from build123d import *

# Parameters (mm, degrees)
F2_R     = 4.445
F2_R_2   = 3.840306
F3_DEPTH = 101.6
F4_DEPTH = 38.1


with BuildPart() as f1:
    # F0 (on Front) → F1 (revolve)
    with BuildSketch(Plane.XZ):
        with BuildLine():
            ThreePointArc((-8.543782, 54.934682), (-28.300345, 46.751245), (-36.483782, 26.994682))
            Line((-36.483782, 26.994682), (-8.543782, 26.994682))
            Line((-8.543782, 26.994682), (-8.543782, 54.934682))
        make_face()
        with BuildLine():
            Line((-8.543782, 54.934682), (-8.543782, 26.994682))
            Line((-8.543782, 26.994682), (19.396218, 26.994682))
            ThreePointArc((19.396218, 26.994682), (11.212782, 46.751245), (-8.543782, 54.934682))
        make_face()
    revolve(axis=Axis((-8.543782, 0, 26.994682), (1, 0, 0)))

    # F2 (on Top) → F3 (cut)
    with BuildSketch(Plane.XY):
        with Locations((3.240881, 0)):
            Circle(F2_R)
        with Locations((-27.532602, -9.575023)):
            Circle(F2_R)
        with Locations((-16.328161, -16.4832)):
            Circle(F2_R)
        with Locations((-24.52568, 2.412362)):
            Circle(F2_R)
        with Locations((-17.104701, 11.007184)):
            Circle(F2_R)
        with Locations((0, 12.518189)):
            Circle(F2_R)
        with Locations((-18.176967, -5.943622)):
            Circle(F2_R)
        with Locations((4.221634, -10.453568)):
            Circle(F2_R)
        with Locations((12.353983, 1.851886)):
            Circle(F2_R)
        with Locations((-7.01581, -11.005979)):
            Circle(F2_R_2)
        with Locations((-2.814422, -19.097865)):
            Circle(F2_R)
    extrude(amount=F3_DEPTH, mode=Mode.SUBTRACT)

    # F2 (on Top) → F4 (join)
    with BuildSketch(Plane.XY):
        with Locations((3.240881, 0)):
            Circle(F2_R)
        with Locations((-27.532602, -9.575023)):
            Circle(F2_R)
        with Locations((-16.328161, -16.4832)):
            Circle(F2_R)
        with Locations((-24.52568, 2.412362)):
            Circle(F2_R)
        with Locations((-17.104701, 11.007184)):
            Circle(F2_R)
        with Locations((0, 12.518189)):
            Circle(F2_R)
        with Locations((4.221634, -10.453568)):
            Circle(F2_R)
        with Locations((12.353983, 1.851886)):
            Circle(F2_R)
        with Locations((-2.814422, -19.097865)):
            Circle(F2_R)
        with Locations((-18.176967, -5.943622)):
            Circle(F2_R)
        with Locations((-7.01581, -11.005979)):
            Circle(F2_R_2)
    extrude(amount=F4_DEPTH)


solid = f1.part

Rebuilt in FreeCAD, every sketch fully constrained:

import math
import FreeCAD as App
import Part
import Sketcher
from FreeCAD import Vector
Q = App.Units.Quantity

doc = App.newDocument("Part")
body = doc.addObject("PartDesign::Body", "Body")

# Sketch on XZ plane
sketch1 = doc.addObject("Sketcher::SketchObject", "Sketch")
body.addObject(sketch1)
sketch1.AttachmentSupport = (doc.XZ_Plane, [""])
sketch1.MapMode = "FlatFace"
sketch1.addGeometry(Part.ArcOfCircle(Part.Circle(Vector(-9, 27, 0), Vector(0, 0, 1), 28), math.radians(90), math.radians(180)), False)
sketch1.addGeometry(Part.LineSegment(Vector(-36, 27, 0), Vector(19, 27, 0)), False)
sketch1.addGeometry(Part.ArcOfCircle(Part.Circle(Vector(-9, 27, 0), Vector(0, 0, 1), 28), math.radians(0), math.radians(90)), False)
sketch1.addGeometry(Part.LineSegment(Vector(-36, 27, 0), Vector(19, 27, 0)), True)  # axis
sketch1.addConstraint(Sketcher.Constraint("Coincident", 0, 2, 1, 1))
sketch1.addConstraint(Sketcher.Constraint("Coincident", 1, 2, 2, 1))
sketch1.addConstraint(Sketcher.Constraint("Tangent", 2, 2, 0, 1))
sketch1.addConstraint(Sketcher.Constraint("Horizontal", 1))
sketch1.addConstraint(Sketcher.Constraint("Horizontal", 3))
sketch1.addConstraint(Sketcher.Constraint("Coincident", 3, 1, 0, 2))
sketch1.addConstraint(Sketcher.Constraint("Equal", 0, 2))
sketch1.addConstraint(Sketcher.Constraint("Horizontal", 2, 3, 0, 2))
sketch1.addConstraint(Sketcher.Constraint("Vertical", 0, 3, 2, 2))
sketch1.addConstraint(Sketcher.Constraint("Equal", 1, 3))
sketch1.addConstraint(Sketcher.Constraint("Radius", 0, Q("1.1000001 in")))
sketch1.addConstraint(Sketcher.Constraint("DistanceX", 0, 3, -1, 1, Q("8.54378 mm")))
sketch1.addConstraint(Sketcher.Constraint("DistanceY", -1, 1, 0, 3, Q("26.99468 mm")))
revolution = doc.addObject("PartDesign::Revolution", "Revolution")
body.addObject(revolution)
revolution.Profile = sketch1
revolution.ReferenceAxis = (sketch1, ["Axis0"])
revolution.Angle = 360

# Sketch on XY plane
sketch2 = doc.addObject("Sketcher::SketchObject", "Sketch001")
body.addObject(sketch2)
sketch2.AttachmentSupport = (doc.XY_Plane, [""])
sketch2.MapMode = "FlatFace"
sketch2.addGeometry(Part.Circle(Vector(3.2, 0, 0), Vector(0, 0, 1), 4.4), False)
sketch2.addGeometry(Part.Circle(Vector(-27.5, -9.6, 0), Vector(0, 0, 1), 4.4), False)
sketch2.addGeometry(Part.Circle(Vector(-16.3, -16.5, 0), Vector(0, 0, 1), 4.4), False)
sketch2.addGeometry(Part.Circle(Vector(-24.5, 2.4, 0), Vector(0, 0, 1), 4.4), False)
sketch2.addGeometry(Part.Circle(Vector(-17.1, 11, 0), Vector(0, 0, 1), 4.4), False)
sketch2.addGeometry(Part.Circle(Vector(0, 12.5, 0), Vector(0, 0, 1), 4.4), False)
sketch2.addGeometry(Part.Circle(Vector(-18.2, -5.9, 0), Vector(0, 0, 1), 4.4), False)
sketch2.addGeometry(Part.Circle(Vector(4.2, -10.5, 0), Vector(0, 0, 1), 4.4), False)
sketch2.addGeometry(Part.Circle(Vector(12.4, 1.9, 0), Vector(0, 0, 1), 4.4), False)
sketch2.addGeometry(Part.Circle(Vector(-7, -11, 0), Vector(0, 0, 1), 3.8), False)
sketch2.addGeometry(Part.Circle(Vector(-2.8, -19.1, 0), Vector(0, 0, 1), 4.4), False)
sketch2.addConstraint(Sketcher.Constraint("Equal", 0, 1))
sketch2.addConstraint(Sketcher.Constraint("Equal", 1, 2))
sketch2.addConstraint(Sketcher.Constraint("Equal", 2, 3))
sketch2.addConstraint(Sketcher.Constraint("Equal", 3, 4))
sketch2.addConstraint(Sketcher.Constraint("Equal", 4, 5))
sketch2.addConstraint(Sketcher.Constraint("Equal", 5, 6))
sketch2.addConstraint(Sketcher.Constraint("Equal", 6, 7))
sketch2.addConstraint(Sketcher.Constraint("Equal", 7, 8))
sketch2.addConstraint(Sketcher.Constraint("Equal", 8, 10))
sketch2.addConstraint(Sketcher.Constraint("PointOnObject", 0, 3, -1))
sketch2.addConstraint(Sketcher.Constraint("PointOnObject", 5, 3, -2))
sketch2.addConstraint(Sketcher.Constraint("Diameter", 0, Q("0.35 in")))
sketch2.addConstraint(Sketcher.Constraint("Diameter", 9, Q("7.680612 mm")))
sketch2.addConstraint(Sketcher.Constraint("DistanceY", 7, 3, 5, 3, Q("0.9043999 in")))
sketch2.addConstraint(Sketcher.Constraint("DistanceY", 2, 3, -1, 1, Q("16.4832 mm")))
sketch2.addConstraint(Sketcher.Constraint("DistanceX", 4, 3, -1, 1, Q("17.104701 mm")))
sketch2.addConstraint(Sketcher.Constraint("DistanceX", 1, 3, 4, 3, Q("10.427901 mm")))
sketch2.addConstraint(Sketcher.Constraint("DistanceY", 1, 3, 6, 3, Q("3.631401 mm")))
sketch2.addConstraint(Sketcher.Constraint("DistanceX", 6, 3, 7, 3, Q("22.398601 mm")))
sketch2.addConstraint(Sketcher.Constraint("DistanceX", -1, 1, 0, 3, Q("3.240881 mm")))
sketch2.addConstraint(Sketcher.Constraint("DistanceX", 2, 3, -1, 1, Q("16.328161 mm")))
sketch2.addConstraint(Sketcher.Constraint("DistanceX", 3, 3, -1, 1, Q("24.52568 mm")))
sketch2.addConstraint(Sketcher.Constraint("DistanceY", -1, 1, 3, 3, Q("2.412362 mm")))
sketch2.addConstraint(Sketcher.Constraint("DistanceY", -1, 1, 5, 3, Q("12.518189 mm")))
sketch2.addConstraint(Sketcher.Constraint("DistanceX", 9, 3, -1, 1, Q("7.01581 mm")))
sketch2.addConstraint(Sketcher.Constraint("DistanceY", 9, 3, -1, 1, Q("11.005979 mm")))
sketch2.addConstraint(Sketcher.Constraint("DistanceX", 10, 3, -1, 1, Q("2.814422 mm")))
sketch2.addConstraint(Sketcher.Constraint("DistanceY", 7, 3, 4, 3, Q("21.460752 mm")))
sketch2.addConstraint(Sketcher.Constraint("DistanceX", 7, 3, 8, 3, Q("8.132349 mm")))
sketch2.addConstraint(Sketcher.Constraint("DistanceY", 1, 3, -1, 1, Q("9.575023 mm")))
sketch2.addConstraint(Sketcher.Constraint("DistanceX", 6, 3, -1, 1, Q("18.176967 mm")))
sketch2.addConstraint(Sketcher.Constraint("DistanceY", -1, 1, 8, 3, Q("1.851886 mm")))
sketch2.addConstraint(Sketcher.Constraint("DistanceY", 10, 3, -1, 1, Q("19.097865 mm")))
pocket1 = doc.addObject("PartDesign::Pocket", "Pocket")
body.addObject(pocket1)
pocket1.Profile = sketch2
pocket1.Length = Q("4 in")
pocket1.Reversed = True

# Sketch on XY plane
sketch3 = doc.addObject("Sketcher::SketchObject", "Sketch002")
body.addObject(sketch3)
sketch3.AttachmentSupport = (doc.XY_Plane, [""])
sketch3.MapMode = "FlatFace"
sketch3.addGeometry(Part.Circle(Vector(3.2, 0, 0), Vector(0, 0, 1), 4.4), False)
sketch3.addGeometry(Part.Circle(Vector(-27.5, -9.6, 0), Vector(0, 0, 1), 4.4), False)
sketch3.addGeometry(Part.Circle(Vector(-16.3, -16.5, 0), Vector(0, 0, 1), 4.4), False)
sketch3.addGeometry(Part.Circle(Vector(-24.5, 2.4, 0), Vector(0, 0, 1), 4.4), False)
sketch3.addGeometry(Part.Circle(Vector(-17.1, 11, 0), Vector(0, 0, 1), 4.4), False)
sketch3.addGeometry(Part.Circle(Vector(0, 12.5, 0), Vector(0, 0, 1), 4.4), False)
sketch3.addGeometry(Part.Circle(Vector(4.2, -10.5, 0), Vector(0, 0, 1), 4.4), False)
sketch3.addGeometry(Part.Circle(Vector(12.4, 1.9, 0), Vector(0, 0, 1), 4.4), False)
sketch3.addGeometry(Part.Circle(Vector(-2.8, -19.1, 0), Vector(0, 0, 1), 4.4), False)
sketch3.addGeometry(Part.Circle(Vector(-18.2, -5.9, 0), Vector(0, 0, 1), 4.4), False)
sketch3.addGeometry(Part.Circle(Vector(-7, -11, 0), Vector(0, 0, 1), 3.8), False)
sketch3.addConstraint(Sketcher.Constraint("Equal", 0, 1))
sketch3.addConstraint(Sketcher.Constraint("Equal", 1, 2))
sketch3.addConstraint(Sketcher.Constraint("Equal", 2, 3))
sketch3.addConstraint(Sketcher.Constraint("Equal", 3, 4))
sketch3.addConstraint(Sketcher.Constraint("Equal", 4, 5))
sketch3.addConstraint(Sketcher.Constraint("Equal", 5, 6))
sketch3.addConstraint(Sketcher.Constraint("Equal", 6, 7))
sketch3.addConstraint(Sketcher.Constraint("Equal", 7, 8))
sketch3.addConstraint(Sketcher.Constraint("Equal", 8, 9))
sketch3.addConstraint(Sketcher.Constraint("PointOnObject", 0, 3, -1))
sketch3.addConstraint(Sketcher.Constraint("PointOnObject", 5, 3, -2))
sketch3.addConstraint(Sketcher.Constraint("Diameter", 0, Q("0.35 in")))
sketch3.addConstraint(Sketcher.Constraint("Diameter", 10, Q("7.680612 mm")))
sketch3.addConstraint(Sketcher.Constraint("DistanceY", 6, 3, 5, 3, Q("0.9043999 in")))
sketch3.addConstraint(Sketcher.Constraint("DistanceY", 2, 3, -1, 1, Q("16.4832 mm")))
sketch3.addConstraint(Sketcher.Constraint("DistanceX", 4, 3, -1, 1, Q("17.104701 mm")))
sketch3.addConstraint(Sketcher.Constraint("DistanceX", 1, 3, 4, 3, Q("10.427901 mm")))
sketch3.addConstraint(Sketcher.Constraint("DistanceY", 1, 3, 9, 3, Q("3.631401 mm")))
sketch3.addConstraint(Sketcher.Constraint("DistanceX", -1, 1, 0, 3, Q("3.240881 mm")))
sketch3.addConstraint(Sketcher.Constraint("DistanceX", 2, 3, -1, 1, Q("16.328161 mm")))
sketch3.addConstraint(Sketcher.Constraint("DistanceX", 3, 3, -1, 1, Q("24.52568 mm")))
sketch3.addConstraint(Sketcher.Constraint("DistanceY", -1, 1, 3, 3, Q("2.412362 mm")))
sketch3.addConstraint(Sketcher.Constraint("DistanceY", -1, 1, 5, 3, Q("12.518189 mm")))
sketch3.addConstraint(Sketcher.Constraint("DistanceX", 8, 3, -1, 1, Q("2.814422 mm")))
sketch3.addConstraint(Sketcher.Constraint("DistanceX", 10, 3, -1, 1, Q("7.01581 mm")))
sketch3.addConstraint(Sketcher.Constraint("DistanceY", 10, 3, -1, 1, Q("11.005979 mm")))
sketch3.addConstraint(Sketcher.Constraint("DistanceY", 6, 3, 4, 3, Q("21.460752 mm")))
sketch3.addConstraint(Sketcher.Constraint("DistanceX", 6, 3, 7, 3, Q("8.132349 mm")))
sketch3.addConstraint(Sketcher.Constraint("DistanceY", 8, 3, 7, 3, Q("20.949751 mm")))
sketch3.addConstraint(Sketcher.Constraint("DistanceY", 8, 3, 1, 3, Q("9.522842 mm")))
sketch3.addConstraint(Sketcher.Constraint("DistanceY", 1, 3, -1, 1, Q("9.575023 mm")))
sketch3.addConstraint(Sketcher.Constraint("DistanceX", -1, 1, 6, 3, Q("4.221634 mm")))
sketch3.addConstraint(Sketcher.Constraint("DistanceX", 9, 3, -1, 1, Q("18.176967 mm")))
pad1 = doc.addObject("PartDesign::Pad", "Pad")
body.addObject(pad1)
pad1.Profile = sketch3
pad1.Length = Q("1.5 in")

doc.recompute()
